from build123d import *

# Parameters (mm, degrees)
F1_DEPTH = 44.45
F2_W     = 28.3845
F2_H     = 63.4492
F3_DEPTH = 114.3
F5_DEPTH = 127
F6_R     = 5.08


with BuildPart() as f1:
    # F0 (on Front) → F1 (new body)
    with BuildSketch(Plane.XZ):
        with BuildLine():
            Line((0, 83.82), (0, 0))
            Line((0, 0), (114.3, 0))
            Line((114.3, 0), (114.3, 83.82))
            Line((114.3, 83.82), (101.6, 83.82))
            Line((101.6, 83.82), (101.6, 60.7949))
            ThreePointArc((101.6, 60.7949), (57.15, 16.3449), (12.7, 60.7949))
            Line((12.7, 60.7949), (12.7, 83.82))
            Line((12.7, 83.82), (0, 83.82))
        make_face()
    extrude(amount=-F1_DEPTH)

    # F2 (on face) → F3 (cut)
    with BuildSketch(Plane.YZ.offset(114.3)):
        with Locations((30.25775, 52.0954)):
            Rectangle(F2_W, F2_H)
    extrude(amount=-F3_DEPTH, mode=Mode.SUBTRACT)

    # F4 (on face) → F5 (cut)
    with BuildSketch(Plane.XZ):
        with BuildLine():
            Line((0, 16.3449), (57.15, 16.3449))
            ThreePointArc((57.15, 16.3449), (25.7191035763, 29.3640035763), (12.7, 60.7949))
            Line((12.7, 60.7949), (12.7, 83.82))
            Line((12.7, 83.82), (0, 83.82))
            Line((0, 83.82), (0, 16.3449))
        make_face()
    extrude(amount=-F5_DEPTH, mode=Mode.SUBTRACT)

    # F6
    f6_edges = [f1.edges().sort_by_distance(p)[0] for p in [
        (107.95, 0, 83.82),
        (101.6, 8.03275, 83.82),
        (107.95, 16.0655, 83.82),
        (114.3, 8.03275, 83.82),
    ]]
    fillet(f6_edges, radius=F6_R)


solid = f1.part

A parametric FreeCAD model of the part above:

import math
import FreeCAD as App
import Part
import Sketcher

V = App.Vector
Q = App.Units.Quantity


def edges_at(feature, points):
    """Names of the edges that pass closest to the given points."""
    edges = feature.Shape.Edges
    near = lambda p: min(range(len(edges)), key=lambda i: edges[i].distToShape(Part.Vertex(*p))[0])
    return sorted({f"Edge{near(p) + 1}" for p in points})


def add_polygon(sketch, points):
    """Adds a closed chain of lines whose ends are joined by coincident constraints."""
    first, n = sketch.GeometryCount, len(points)
    for a, b in zip(points, points[1:] + points[:1]):
        sketch.addGeometry(Part.LineSegment(App.Vector(*a, 0), App.Vector(*b, 0)), False)
    for i in range(n):
        sketch.addConstraint(Sketcher.Constraint("Coincident", first + i, 2, first + (i + 1) % n, 1))

doc = App.newDocument("Part")
body = doc.addObject("PartDesign::Body", "Body")

sketch1 = body.newObject("Sketcher::SketchObject", "Sketch")
sketch1.AttachmentSupport = (doc.getObject("XZ_Plane"), [""])
sketch1.MapMode = "FlatFace"
sketch1.addGeometry(Part.LineSegment(V(0, 83.82, 0), V(0, 0, 0)), False)
sketch1.addGeometry(Part.LineSegment(V(0, 0, 0), V(114.3, 0, 0)), False)
sketch1.addGeometry(Part.LineSegment(V(114.3, 0, 0), V(114.3, 83.82, 0)), False)
sketch1.addGeometry(Part.LineSegment(V(114.3, 83.82, 0), V(101.6, 83.82, 0)), False)
sketch1.addGeometry(Part.LineSegment(V(101.6, 83.82, 0), V(101.6, 60.7949, 0)), False)
sketch1.addGeometry(Part.ArcOfCircle(Part.Circle(V(57.15, 60.7949, 0), V(0, 0, 1), 44.45), math.radians(180), math.radians(360)), False)
sketch1.addGeometry(Part.LineSegment(V(12.7, 60.7949, 0), V(12.7, 83.82, 0)), False)
sketch1.addGeometry(Part.LineSegment(V(12.7, 83.82, 0), V(0, 83.82, 0)), False)
sketch1.addConstraint(Sketcher.Constraint("Coincident", 0, 2, 1, 1))
sketch1.addConstraint(Sketcher.Constraint("Coincident", 1, 2, 2, 1))
sketch1.addConstraint(Sketcher.Constraint("Coincident", 2, 2, 3, 1))
sketch1.addConstraint(Sketcher.Constraint("Coincident", 3, 2, 4, 1))
sketch1.addConstraint(Sketcher.Constraint("Tangent", 4, 2, 5, 2))
sketch1.addConstraint(Sketcher.Constraint("Tangent", 5, 1, 6, 1))
sketch1.addConstraint(Sketcher.Constraint("Coincident", 6, 2, 7, 1))
sketch1.addConstraint(Sketcher.Constraint("Coincident", 7, 2, 0, 1))
sketch1.addConstraint(Sketcher.Constraint("Vertical", 0))
sketch1.addConstraint(Sketcher.Constraint("Horizontal", 1))
sketch1.addConstraint(Sketcher.Constraint("Vertical", 2))
sketch1.addConstraint(Sketcher.Constraint("Horizontal", 3))
sketch1.addConstraint(Sketcher.Constraint("Vertical", 4))
sketch1.addConstraint(Sketcher.Constraint("Vertical", 6))
sketch1.addConstraint(Sketcher.Constraint("Horizontal", 7))
sketch1.addConstraint(Sketcher.Constraint("Coincident", 0, 2, -1, 1))
sketch1.addConstraint(Sketcher.Constraint("Horizontal", 3, 2, 6, 2))
sketch1.addConstraint(Sketcher.Constraint("Equal", 3, 7))
sketch1.addConstraint(Sketcher.Constraint("Radius", 5, Q("1.75 in")))
sketch1.addConstraint(Sketcher.Constraint("DistanceX", 1, 1, 1, 2, Q("4.5 in")))
sketch1.addConstraint(Sketcher.Constraint("DistanceY", 0, 2, 0, 1, Q("3.3 in")))
sketch1.addConstraint(Sketcher.Constraint("DistanceY", 4, 2, 4, 1, Q("0.9065 in")))
pad1 = body.newObject("PartDesign::Pad", "Pad")
pad1.Profile = sketch1
pad1.Length = Q("1.75 in")
pad1.Reversed = True

sketch2 = body.newObject("Sketcher::SketchObject", "Sketch001")
sketch2.AttachmentSupport = (doc.getObject("YZ_Plane"), [""])
sketch2.MapMode = "FlatFace"
sketch2.AttachmentOffset = App.Placement(V(0, 0, 4.5 * 25.4), App.Rotation())
add_polygon(sketch2, [(16.0655, 83.82), (16.0655, 20.3708), (44.45, 20.3708), (44.45, 83.82)])
sketch2.addConstraint(Sketcher.Constraint("Vertical", 0))
sketch2.addConstraint(Sketcher.Constraint("Horizontal", 1))
sketch2.addConstraint(Sketcher.Constraint("Vertical", 2))
sketch2.addConstraint(Sketcher.Constraint("Horizontal", 3))
sketch2.addConstraint(Sketcher.Constraint("DistanceY", -1, 1, 2, 2, Q("3.3 in")))
sketch2.addConstraint(Sketcher.Constraint("DistanceY", 0, 2, 0, 1, Q("2.498 in")))
sketch2.addConstraint(Sketcher.Constraint("DistanceX", -1, 1, 1, 2, Q("1.75 in")))
sketch2.addConstraint(Sketcher.Constraint("DistanceX", 1, 1, 1, 2, Q("1.1175 in")))
pocket1 = body.newObject("PartDesign::Pocket", "Pocket")
pocket1.Profile = sketch2
pocket1.Length = Q("4.5 in")

sketch3 = body.newObject("Sketcher::SketchObject", "Sketch002")
sketch3.AttachmentSupport = (doc.getObject("XZ_Plane"), [""])
sketch3.MapMode = "FlatFace"
sketch3.addGeometry(Part.LineSegment(V(0, 16.3449, 0), V(57.15, 16.3449, 0)), False)
sketch3.addGeometry(Part.ArcOfCircle(Part.Circle(V(57.15, 60.7949, 0), V(0, 0, 1), 44.45), math.radians(180), math.radians(270)), False)
sketch3.addGeometry(Part.LineSegment(V(12.7, 60.7949, 0), V(12.7, 83.82, 0)), False)
sketch3.addGeometry(Part.LineSegment(V(12.7, 83.82, 0), V(0, 83.82, 0)), False)
sketch3.addGeometry(Part.LineSegment(V(0, 83.82, 0), V(0, 16.3449, 0)), False)
sketch3.addConstraint(Sketcher.Constraint("Tangent", 0, 2, 1, 2))
sketch3.addConstraint(Sketcher.Constraint("Tangent", 1, 1, 2, 1))
sketch3.addConstraint(Sketcher.Constraint("Coincident", 2, 2, 3, 1))
sketch3.addConstraint(Sketcher.Constraint("Coincident", 3, 2, 4, 1))
sketch3.addConstraint(Sketcher.Constraint("Coincident", 4, 2, 0, 1))
sketch3.addConstraint(Sketcher.Constraint("Horizontal", 0))
sketch3.addConstraint(Sketcher.Constraint("Vertical", 2))
sketch3.addConstraint(Sketcher.Constraint("Horizontal", 3))
sketch3.addConstraint(Sketcher.Constraint("Vertical", 4))
sketch3.addConstraint(Sketcher.Constraint("PointOnObject", 3, 2, -2))
sketch3.addConstraint(Sketcher.Constraint("Radius", 1, Q("1.75 in")))
sketch3.addConstraint(Sketcher.Constraint("DistanceX", 3, 2, 3, 1, Q("0.5 in")))
sketch3.addConstraint(Sketcher.Constraint("DistanceY", -1, 1, 2, 2, Q("3.3 in")))
sketch3.addConstraint(Sketcher.Constraint("DistanceY", 2, 1, 2, 2, Q("0.9065 in")))
pocket2 = body.newObject("PartDesign::Pocket", "Pocket001")
pocket2.Profile = sketch3
pocket2.Length = Q("5 in")
doc.recompute()

fillet = body.newObject("PartDesign::Fillet", "Fillet")
fillet.Base = (pocket2, edges_at(pocket2, [
    (107.95, 0, 83.82),
    (101.6, 8.033, 83.82),
    (107.95, 16.066, 83.82),
    (114.3, 8.033, 83.82),
]))
fillet.Radius = Q("0.2 in")

doc.recompute()
